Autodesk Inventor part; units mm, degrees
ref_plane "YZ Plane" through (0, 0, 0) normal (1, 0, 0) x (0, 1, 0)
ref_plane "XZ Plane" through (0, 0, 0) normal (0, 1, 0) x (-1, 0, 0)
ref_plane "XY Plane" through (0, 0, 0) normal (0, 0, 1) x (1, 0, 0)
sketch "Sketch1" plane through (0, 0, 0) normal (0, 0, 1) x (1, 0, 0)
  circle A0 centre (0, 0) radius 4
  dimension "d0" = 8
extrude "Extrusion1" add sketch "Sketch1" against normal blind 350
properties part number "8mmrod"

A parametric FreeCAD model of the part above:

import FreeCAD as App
import Part
import Sketcher

doc = App.newDocument("Part")
body = doc.addObject("PartDesign::Body", "Body")

# Sketch on XY plane
sketch1 = body.newObject("Sketcher::SketchObject", "Sketch")
sketch1.AttachmentSupport = (doc.getObject("XY_Plane"), [""])
sketch1.MapMode = "FlatFace"
sketch1.addGeometry(Part.Circle(App.Vector(0, 0, 0), App.Vector(0, 0, 1), 4), False)
sketch1.addConstraint([
    Sketcher.Constraint("Coincident", 0, 3, -1, 1),
    Sketcher.Constraint("Diameter", 0, 8.0),
])
pad1 = body.newObject("PartDesign::Pad", "Pad")
pad1.Profile = sketch1
pad1.Length = 350
pad1.Reversed = True

doc.recompute()
